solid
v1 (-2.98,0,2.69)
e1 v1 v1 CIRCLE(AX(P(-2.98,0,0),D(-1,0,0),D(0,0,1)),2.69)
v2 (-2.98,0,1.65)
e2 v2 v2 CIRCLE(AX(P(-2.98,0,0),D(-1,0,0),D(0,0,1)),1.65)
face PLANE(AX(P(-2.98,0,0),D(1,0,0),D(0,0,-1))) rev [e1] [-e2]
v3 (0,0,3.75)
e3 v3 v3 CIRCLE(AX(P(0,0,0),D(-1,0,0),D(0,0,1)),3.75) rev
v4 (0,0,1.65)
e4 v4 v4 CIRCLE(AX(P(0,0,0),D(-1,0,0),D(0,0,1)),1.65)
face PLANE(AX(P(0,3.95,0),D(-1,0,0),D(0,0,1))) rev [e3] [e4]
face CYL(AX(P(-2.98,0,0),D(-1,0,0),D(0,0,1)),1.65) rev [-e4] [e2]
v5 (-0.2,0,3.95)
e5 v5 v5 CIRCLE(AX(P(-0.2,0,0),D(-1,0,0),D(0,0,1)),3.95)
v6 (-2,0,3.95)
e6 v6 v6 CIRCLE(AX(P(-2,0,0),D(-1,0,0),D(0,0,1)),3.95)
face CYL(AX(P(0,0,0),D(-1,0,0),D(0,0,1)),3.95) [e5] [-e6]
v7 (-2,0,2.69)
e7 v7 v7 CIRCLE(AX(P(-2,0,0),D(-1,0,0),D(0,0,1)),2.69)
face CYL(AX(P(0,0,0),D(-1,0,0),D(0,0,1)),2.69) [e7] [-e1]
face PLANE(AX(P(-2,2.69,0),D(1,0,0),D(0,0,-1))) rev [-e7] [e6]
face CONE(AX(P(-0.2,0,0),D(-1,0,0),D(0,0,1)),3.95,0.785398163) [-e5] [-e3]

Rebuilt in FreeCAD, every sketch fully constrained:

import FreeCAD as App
import Part
import Sketcher


def edges_at(feature, points):
    """Names of the edges that pass closest to the given points."""
    edges = feature.Shape.Edges
    near = lambda p: min(range(len(edges)), key=lambda i: edges[i].distToShape(Part.Vertex(*p))[0])
    return sorted({f"Edge{near(p) + 1}" for p in points})

doc = App.newDocument("Part")
params = doc.addObject("Spreadsheet::Sheet", "Params")
for row, (alias, value) in enumerate([
    ("sketch1_width", "2 mm"),
    ("sketch1_width2", "2.98 mm"),
    ("sketch1_height", "3.95 mm"),
    ("sketch1_height2", "1.26 mm"),
    ("revolution_angle", "360 deg"),
    ("sketch2_diameter", "3.3 mm"),
    ("hole_diameter", "3.3 mm"),
    ("chamfer_size", "0.2 mm"),
], start=1):
    params.set(f"A{row}", alias)
    params.set(f"B{row}", "=" + value)
    params.setAlias(f"B{row}", alias)

body = doc.addObject("PartDesign::Body", "Body")

sketch1 = doc.addObject("Sketcher::SketchObject", "Sketch")
body.addObject(sketch1)
sketch1.AttachmentSupport = (doc.XY_Plane, [""])
sketch1.MapMode = "FlatFace"
sketch1.addGeometry(Part.LineSegment(App.Vector(-3, 0, 0), App.Vector(0, 0, 0)), False)
sketch1.addGeometry(Part.LineSegment(App.Vector(0, 0, 0), App.Vector(0, 4, 0)), False)
sketch1.addGeometry(Part.LineSegment(App.Vector(0, 4, 0), App.Vector(-2, 4, 0)), False)
sketch1.addGeometry(Part.LineSegment(App.Vector(-2, 4, 0), App.Vector(-2, 2.7, 0)), False)
sketch1.addGeometry(Part.LineSegment(App.Vector(-2, 2.7, 0), App.Vector(-3, 2.7, 0)), False)
sketch1.addGeometry(Part.LineSegment(App.Vector(-3, 2.7, 0), App.Vector(-3, 0, 0)), False)
sketch1.addConstraint(Sketcher.Constraint("Coincident", 0, 2, 1, 1))
sketch1.addConstraint(Sketcher.Constraint("Coincident", 1, 2, 2, 1))
sketch1.addConstraint(Sketcher.Constraint("Coincident", 2, 2, 3, 1))
sketch1.addConstraint(Sketcher.Constraint("Coincident", 3, 2, 4, 1))
sketch1.addConstraint(Sketcher.Constraint("Coincident", 4, 2, 5, 1))
sketch1.addConstraint(Sketcher.Constraint("Coincident", 5, 2, 0, 1))
sketch1.addConstraint(Sketcher.Constraint("Horizontal", 0))
sketch1.addConstraint(Sketcher.Constraint("Vertical", 1))
sketch1.addConstraint(Sketcher.Constraint("Horizontal", 2))
sketch1.addConstraint(Sketcher.Constraint("Vertical", 3))
sketch1.addConstraint(Sketcher.Constraint("Horizontal", 4))
sketch1.addConstraint(Sketcher.Constraint("Vertical", 5))
sketch1.addConstraint(Sketcher.Constraint("Coincident", 0, 2, -1, 1))
sketch1.addConstraint(Sketcher.Constraint("DistanceX", 2, 2, 2, 1, 2.0))
sketch1.addConstraint(Sketcher.Constraint("DistanceX", 0, 1, 0, 2, 2.98))
sketch1.addConstraint(Sketcher.Constraint("DistanceY", 1, 1, 1, 2, 3.95))
sketch1.addConstraint(Sketcher.Constraint("DistanceY", 3, 2, 3, 1, 1.26))
sketch1.setExpression("Constraints[13]", "Params.sketch1_width")
sketch1.setExpression("Constraints[14]", "Params.sketch1_width2")
sketch1.setExpression("Constraints[15]", "Params.sketch1_height")
sketch1.setExpression("Constraints[16]", "Params.sketch1_height2")
revolution = doc.addObject("PartDesign::Revolution", "Revolution")
body.addObject(revolution)
revolution.Profile = sketch1
revolution.ReferenceAxis = (sketch1, ["H_Axis"])
revolution.setExpression("Angle", "Params.revolution_angle")

sketch2 = doc.addObject("Sketcher::SketchObject", "Sketch001")
body.addObject(sketch2)
sketch2.AttachmentSupport = (doc.YZ_Plane, [""])
sketch2.MapMode = "FlatFace"
sketch2.AttachmentOffset = App.Placement(App.Vector(0, 0, -2.98), App.Rotation())
sketch2.addGeometry(Part.Circle(App.Vector(0, 0, 0), App.Vector(0, 0, 1), 1.6), False)
sketch2.addConstraint(Sketcher.Constraint("Coincident", 0, 3, -1, 1))
sketch2.addConstraint(Sketcher.Constraint("Diameter", 0, 3.3))
sketch2.setExpression("Constraints[1]", "Params.sketch2_diameter")
doc.recompute()
hole = doc.addObject("PartDesign::Hole", "Hole")
body.addObject(hole)
hole.Profile = sketch2
hole.ThreadType = "None"
hole.setExpression("Diameter", "Params.hole_diameter")
hole.DepthType = "ThroughAll"
hole.Reversed = True
doc.recompute()

chamfer = doc.addObject("PartDesign::Chamfer", "Chamfer")
body.addObject(chamfer)
chamfer.Base = (hole, edges_at(hole, [(0, 0, -3.95)]))
chamfer.setExpression("Size", "Params.chamfer_size")

doc.recompute()
